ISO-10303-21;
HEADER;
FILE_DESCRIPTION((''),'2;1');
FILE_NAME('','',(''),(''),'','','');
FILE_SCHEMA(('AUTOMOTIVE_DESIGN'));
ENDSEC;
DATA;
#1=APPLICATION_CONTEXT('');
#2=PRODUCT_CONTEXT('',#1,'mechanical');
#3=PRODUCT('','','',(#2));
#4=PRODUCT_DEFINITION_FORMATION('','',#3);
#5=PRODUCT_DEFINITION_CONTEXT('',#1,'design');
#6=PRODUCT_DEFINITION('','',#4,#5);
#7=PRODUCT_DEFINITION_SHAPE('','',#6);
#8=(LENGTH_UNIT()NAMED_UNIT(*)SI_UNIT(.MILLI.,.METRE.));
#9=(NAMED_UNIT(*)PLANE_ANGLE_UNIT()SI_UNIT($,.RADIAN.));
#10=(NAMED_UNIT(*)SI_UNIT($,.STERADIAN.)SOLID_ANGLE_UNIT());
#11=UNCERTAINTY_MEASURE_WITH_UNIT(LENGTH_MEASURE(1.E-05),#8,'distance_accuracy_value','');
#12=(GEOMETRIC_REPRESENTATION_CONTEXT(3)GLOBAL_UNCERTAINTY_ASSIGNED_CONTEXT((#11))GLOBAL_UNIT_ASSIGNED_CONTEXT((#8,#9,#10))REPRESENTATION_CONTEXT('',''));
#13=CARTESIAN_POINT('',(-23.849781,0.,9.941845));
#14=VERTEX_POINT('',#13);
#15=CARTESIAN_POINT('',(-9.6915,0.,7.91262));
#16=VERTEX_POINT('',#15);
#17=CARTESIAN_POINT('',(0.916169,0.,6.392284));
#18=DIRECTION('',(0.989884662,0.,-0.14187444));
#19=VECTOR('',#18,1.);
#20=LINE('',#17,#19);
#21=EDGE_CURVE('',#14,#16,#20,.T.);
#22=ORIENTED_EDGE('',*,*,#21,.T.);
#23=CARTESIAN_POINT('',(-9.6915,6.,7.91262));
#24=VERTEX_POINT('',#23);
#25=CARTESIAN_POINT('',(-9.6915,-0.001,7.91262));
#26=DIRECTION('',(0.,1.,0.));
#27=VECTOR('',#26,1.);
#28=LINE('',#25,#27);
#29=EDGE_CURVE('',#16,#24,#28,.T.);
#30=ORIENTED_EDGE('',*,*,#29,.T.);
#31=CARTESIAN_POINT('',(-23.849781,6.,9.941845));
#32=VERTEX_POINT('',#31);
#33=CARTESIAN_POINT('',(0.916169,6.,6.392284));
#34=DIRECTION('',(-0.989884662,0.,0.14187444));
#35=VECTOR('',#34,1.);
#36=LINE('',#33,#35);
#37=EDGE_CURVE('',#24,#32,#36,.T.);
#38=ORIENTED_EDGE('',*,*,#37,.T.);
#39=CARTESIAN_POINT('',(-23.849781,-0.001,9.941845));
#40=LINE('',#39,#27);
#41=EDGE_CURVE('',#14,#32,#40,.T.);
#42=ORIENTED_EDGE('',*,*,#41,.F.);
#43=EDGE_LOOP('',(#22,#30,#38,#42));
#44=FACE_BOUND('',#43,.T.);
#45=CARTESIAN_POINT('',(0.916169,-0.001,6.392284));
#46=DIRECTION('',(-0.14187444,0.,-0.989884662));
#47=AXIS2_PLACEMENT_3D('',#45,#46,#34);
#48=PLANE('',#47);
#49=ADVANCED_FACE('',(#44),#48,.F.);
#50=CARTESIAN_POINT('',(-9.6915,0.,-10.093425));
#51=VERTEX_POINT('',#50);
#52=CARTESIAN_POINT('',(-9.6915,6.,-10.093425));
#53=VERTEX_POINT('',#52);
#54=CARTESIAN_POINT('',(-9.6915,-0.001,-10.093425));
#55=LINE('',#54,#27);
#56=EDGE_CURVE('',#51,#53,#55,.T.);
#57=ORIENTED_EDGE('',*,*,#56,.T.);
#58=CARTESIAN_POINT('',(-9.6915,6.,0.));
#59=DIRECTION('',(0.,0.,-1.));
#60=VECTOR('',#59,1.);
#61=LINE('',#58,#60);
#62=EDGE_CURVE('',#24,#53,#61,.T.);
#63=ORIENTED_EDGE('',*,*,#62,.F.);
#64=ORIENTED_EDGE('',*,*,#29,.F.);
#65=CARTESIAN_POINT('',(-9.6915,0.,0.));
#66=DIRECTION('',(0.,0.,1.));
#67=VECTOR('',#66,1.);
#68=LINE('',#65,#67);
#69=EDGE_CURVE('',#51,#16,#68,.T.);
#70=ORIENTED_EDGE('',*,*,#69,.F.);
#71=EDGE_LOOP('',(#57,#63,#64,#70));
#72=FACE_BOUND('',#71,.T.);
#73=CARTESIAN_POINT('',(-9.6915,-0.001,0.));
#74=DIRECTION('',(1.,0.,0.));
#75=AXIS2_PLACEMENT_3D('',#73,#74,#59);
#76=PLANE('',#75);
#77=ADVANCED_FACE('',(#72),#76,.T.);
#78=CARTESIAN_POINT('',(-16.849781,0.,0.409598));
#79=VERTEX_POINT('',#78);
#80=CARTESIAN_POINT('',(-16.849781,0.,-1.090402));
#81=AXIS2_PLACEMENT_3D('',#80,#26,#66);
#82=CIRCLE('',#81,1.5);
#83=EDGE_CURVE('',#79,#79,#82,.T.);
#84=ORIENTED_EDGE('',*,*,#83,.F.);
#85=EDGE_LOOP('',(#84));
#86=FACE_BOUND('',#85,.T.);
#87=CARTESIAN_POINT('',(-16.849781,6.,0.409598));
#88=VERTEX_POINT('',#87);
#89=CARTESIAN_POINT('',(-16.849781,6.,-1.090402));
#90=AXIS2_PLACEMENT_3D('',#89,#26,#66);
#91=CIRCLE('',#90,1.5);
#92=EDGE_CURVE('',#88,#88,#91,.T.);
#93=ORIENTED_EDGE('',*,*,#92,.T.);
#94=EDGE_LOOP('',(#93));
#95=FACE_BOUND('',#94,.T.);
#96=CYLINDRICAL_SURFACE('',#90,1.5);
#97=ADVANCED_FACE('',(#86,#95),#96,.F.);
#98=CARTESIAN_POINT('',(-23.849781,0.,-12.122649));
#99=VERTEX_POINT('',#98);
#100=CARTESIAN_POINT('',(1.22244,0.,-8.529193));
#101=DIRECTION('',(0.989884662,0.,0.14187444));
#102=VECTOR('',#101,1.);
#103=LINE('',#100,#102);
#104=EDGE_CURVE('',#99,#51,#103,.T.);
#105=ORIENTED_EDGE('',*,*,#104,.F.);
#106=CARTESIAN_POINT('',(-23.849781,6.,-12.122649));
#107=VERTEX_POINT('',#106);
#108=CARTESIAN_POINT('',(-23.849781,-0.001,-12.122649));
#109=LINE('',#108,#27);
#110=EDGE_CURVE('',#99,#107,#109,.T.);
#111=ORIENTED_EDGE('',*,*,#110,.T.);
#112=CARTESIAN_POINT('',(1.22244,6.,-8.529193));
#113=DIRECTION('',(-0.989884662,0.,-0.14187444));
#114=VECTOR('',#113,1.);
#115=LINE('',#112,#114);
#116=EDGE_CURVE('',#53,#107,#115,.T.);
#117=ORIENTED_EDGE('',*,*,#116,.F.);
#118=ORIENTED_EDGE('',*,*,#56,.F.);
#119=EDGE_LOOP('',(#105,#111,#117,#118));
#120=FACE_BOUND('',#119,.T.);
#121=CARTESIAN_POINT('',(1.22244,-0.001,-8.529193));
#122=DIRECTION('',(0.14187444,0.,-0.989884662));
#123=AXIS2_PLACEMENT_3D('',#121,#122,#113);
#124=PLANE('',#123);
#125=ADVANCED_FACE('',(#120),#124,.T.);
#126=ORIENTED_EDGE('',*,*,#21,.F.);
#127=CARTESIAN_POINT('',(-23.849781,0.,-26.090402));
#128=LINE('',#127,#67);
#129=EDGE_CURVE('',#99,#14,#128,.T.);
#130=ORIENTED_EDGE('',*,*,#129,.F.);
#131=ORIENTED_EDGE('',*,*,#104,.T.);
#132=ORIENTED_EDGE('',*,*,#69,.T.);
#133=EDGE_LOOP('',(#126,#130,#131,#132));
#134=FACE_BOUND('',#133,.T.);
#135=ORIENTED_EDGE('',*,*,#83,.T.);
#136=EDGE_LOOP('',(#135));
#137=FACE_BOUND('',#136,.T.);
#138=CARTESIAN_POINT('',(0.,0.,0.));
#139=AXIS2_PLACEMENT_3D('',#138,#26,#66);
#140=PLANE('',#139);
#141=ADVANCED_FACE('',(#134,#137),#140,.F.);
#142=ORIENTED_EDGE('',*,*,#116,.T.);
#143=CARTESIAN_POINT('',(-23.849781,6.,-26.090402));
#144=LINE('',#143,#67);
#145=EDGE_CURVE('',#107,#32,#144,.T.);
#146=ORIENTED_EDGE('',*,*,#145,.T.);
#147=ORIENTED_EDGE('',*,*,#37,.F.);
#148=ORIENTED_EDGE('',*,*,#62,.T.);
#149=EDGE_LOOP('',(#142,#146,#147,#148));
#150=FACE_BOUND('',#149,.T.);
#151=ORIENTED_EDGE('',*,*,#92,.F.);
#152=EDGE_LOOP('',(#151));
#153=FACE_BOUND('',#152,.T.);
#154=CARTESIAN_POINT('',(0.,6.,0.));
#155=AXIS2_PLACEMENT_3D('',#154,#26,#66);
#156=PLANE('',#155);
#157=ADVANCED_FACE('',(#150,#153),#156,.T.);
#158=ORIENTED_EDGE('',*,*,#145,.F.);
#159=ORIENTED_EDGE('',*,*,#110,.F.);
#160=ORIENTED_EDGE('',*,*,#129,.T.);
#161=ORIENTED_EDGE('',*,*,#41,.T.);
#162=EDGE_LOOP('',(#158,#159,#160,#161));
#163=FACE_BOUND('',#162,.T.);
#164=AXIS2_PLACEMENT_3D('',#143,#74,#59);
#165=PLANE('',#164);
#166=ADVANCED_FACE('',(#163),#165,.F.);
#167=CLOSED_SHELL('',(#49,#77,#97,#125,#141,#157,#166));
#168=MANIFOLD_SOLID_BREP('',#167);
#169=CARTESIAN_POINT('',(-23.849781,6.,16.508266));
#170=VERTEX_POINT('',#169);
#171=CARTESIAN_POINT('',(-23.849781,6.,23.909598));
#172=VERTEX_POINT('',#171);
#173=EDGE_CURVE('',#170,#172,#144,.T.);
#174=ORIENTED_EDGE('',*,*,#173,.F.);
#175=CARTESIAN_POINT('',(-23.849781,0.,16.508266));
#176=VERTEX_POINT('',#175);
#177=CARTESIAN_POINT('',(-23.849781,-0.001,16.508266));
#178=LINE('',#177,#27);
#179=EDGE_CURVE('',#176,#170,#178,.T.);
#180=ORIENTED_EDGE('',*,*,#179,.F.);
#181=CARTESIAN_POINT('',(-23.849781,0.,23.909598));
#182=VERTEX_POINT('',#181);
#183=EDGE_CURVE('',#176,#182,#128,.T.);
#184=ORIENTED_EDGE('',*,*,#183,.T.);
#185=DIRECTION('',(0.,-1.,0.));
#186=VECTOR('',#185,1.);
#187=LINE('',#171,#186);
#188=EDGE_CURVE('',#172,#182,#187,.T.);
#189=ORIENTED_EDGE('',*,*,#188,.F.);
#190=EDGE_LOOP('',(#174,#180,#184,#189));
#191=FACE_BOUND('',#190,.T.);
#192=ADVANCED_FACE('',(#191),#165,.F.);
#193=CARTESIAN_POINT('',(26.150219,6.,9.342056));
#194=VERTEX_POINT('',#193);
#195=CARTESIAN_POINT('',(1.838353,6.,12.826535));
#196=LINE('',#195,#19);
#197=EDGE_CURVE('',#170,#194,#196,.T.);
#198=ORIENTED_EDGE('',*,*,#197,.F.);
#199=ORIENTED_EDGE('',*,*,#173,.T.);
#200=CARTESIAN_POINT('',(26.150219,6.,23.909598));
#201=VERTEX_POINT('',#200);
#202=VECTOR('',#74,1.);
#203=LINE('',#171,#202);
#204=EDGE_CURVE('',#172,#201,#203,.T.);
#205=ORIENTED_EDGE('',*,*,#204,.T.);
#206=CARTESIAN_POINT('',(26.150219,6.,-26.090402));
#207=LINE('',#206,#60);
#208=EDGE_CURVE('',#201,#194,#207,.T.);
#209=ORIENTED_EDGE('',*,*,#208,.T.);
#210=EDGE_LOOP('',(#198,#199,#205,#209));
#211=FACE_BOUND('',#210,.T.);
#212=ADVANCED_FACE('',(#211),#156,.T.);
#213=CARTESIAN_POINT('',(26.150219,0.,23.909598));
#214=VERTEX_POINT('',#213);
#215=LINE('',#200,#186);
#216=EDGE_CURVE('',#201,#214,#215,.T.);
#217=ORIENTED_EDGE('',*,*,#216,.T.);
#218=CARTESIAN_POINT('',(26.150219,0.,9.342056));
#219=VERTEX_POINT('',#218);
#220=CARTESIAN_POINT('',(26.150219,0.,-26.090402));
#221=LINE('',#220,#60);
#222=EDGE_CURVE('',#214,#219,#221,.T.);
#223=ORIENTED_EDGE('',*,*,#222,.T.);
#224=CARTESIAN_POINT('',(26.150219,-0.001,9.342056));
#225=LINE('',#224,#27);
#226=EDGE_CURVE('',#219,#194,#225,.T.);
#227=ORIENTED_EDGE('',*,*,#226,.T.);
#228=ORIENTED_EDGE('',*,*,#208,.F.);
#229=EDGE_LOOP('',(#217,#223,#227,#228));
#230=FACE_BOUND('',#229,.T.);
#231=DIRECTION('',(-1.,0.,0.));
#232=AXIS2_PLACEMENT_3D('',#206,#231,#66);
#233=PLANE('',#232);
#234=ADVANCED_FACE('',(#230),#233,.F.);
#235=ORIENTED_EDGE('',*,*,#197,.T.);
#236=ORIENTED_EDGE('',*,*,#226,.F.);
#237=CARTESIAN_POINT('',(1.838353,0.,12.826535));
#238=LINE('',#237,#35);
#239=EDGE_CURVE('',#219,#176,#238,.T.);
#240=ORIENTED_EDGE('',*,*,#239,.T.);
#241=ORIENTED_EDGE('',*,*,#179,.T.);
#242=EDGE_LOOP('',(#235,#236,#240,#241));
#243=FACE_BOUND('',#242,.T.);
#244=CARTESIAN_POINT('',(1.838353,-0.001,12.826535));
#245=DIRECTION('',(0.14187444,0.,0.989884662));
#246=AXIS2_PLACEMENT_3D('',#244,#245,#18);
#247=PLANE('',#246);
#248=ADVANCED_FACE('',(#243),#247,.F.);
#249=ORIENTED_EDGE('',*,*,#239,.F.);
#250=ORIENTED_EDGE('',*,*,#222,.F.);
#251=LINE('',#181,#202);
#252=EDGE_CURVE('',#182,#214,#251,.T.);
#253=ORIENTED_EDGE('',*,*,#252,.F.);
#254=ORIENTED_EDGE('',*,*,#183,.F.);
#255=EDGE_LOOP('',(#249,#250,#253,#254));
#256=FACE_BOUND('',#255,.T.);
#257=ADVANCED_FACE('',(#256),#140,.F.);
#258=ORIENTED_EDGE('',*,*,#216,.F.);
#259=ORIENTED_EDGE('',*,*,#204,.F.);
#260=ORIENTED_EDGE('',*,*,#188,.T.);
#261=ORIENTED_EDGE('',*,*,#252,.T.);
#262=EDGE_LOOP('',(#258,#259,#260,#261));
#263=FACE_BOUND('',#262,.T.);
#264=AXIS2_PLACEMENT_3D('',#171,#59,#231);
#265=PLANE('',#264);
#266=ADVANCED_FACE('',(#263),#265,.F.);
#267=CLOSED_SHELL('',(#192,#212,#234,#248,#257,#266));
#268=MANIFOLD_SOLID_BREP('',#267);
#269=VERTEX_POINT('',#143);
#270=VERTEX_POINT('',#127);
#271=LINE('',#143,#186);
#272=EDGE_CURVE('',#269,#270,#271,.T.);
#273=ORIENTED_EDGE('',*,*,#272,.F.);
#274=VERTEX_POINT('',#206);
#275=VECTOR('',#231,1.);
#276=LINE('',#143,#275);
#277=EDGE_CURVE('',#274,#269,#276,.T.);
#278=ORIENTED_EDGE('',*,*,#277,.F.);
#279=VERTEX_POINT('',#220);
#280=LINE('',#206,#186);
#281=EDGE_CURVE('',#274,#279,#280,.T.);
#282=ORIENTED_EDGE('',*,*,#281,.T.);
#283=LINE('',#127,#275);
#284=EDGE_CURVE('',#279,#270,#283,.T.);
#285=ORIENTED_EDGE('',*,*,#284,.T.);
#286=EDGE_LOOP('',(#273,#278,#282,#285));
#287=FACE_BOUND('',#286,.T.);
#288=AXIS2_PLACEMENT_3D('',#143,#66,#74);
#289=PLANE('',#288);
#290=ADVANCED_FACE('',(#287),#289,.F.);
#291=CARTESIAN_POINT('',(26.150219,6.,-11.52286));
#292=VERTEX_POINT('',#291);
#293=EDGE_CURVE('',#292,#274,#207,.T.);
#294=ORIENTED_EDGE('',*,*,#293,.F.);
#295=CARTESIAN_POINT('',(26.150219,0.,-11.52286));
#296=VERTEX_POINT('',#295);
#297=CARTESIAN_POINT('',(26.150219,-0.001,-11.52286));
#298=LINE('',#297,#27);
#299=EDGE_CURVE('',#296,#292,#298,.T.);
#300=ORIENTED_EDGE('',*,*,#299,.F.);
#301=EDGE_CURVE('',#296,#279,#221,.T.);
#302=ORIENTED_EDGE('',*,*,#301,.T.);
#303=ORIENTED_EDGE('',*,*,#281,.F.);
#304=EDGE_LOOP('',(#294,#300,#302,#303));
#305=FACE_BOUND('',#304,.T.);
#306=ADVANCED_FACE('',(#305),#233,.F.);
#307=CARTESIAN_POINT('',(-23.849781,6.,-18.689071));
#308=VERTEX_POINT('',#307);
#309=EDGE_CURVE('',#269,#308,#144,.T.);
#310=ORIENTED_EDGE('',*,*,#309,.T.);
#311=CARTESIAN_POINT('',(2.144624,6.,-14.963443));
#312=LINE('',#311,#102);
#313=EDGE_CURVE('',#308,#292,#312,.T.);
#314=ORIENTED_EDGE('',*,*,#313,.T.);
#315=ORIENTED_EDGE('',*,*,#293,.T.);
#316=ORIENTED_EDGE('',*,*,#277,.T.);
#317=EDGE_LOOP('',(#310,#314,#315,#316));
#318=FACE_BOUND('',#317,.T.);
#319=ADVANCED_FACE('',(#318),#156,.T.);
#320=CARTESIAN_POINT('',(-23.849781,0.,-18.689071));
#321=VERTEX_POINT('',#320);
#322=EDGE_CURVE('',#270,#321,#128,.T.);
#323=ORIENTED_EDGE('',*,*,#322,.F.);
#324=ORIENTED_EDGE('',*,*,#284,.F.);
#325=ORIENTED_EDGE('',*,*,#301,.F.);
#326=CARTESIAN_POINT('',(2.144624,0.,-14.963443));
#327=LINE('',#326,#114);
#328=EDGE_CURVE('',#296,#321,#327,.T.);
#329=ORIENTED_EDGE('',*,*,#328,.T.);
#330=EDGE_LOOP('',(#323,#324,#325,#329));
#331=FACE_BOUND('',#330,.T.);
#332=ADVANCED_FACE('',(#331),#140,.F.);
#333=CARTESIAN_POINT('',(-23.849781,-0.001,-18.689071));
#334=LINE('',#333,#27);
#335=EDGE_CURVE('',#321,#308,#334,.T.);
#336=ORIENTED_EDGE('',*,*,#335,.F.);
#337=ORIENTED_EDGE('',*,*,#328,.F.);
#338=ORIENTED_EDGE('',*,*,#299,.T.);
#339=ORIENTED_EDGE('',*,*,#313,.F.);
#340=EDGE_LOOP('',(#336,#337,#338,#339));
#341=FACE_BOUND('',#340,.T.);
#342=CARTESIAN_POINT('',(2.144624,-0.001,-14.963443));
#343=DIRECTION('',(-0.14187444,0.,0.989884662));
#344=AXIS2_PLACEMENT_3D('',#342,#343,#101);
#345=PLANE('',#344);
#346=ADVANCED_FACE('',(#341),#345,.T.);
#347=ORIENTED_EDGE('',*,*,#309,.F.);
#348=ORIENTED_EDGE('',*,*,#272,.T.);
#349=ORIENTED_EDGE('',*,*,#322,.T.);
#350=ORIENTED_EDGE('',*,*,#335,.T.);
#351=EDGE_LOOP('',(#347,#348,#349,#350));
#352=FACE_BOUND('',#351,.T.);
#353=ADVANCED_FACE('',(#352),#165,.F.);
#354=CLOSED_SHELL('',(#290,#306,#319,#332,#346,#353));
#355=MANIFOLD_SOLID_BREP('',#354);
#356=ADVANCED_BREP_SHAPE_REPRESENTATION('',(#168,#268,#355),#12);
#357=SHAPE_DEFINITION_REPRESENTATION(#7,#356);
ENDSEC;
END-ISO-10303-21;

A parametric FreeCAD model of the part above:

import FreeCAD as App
import Part
import Sketcher

V = App.Vector
Q = App.Units.Quantity

doc = App.newDocument("Part")
body = doc.addObject("PartDesign::Body", "Body")
body.AllowCompound = True

sketch1 = body.newObject("Sketcher::SketchObject", "Sketch")
sketch1.AttachmentSupport = (doc.getObject("XZ_Plane"), [""])
sketch1.MapMode = "FlatFace"
sketch1.addGeometry(Part.LineSegment(V(-24, -26, 0), V(-24, 24, 0)), False)
sketch1.addGeometry(Part.LineSegment(V(-24, 24, 0), V(26, 24, 0)), False)
sketch1.addGeometry(Part.LineSegment(V(26, 24, 0), V(26, -26, 0)), False)
sketch1.addGeometry(Part.LineSegment(V(26, -26, 0), V(-24, -26, 0)), False)
sketch1.addConstraint(Sketcher.Constraint("Coincident", 0, 2, 1, 1))
sketch1.addConstraint(Sketcher.Constraint("Coincident", 1, 2, 2, 1))
sketch1.addConstraint(Sketcher.Constraint("Coincident", 2, 2, 3, 1))
sketch1.addConstraint(Sketcher.Constraint("Coincident", 3, 2, 0, 1))
sketch1.addConstraint(Sketcher.Constraint("Vertical", 0))
sketch1.addConstraint(Sketcher.Constraint("Horizontal", 1))
sketch1.addConstraint(Sketcher.Constraint("Vertical", 2))
sketch1.addConstraint(Sketcher.Constraint("Horizontal", 3))
sketch1.addConstraint(Sketcher.Constraint("Equal", 3, 0))
sketch1.addConstraint(Sketcher.Constraint("DistanceX", 1, 1, 1, 2, Q("50 mm")))
sketch1.addConstraint(Sketcher.Constraint("DistanceX", 0, 2, -1, 1, Q("23.849781 mm")))
sketch1.addConstraint(Sketcher.Constraint("DistanceY", -1, 1, 0, 2, Q("23.909598 mm")))
pad1 = body.newObject("PartDesign::Pad", "Pad")
pad1.Profile = sketch1
pad1.Length = 6
pad1.Reversed = True

sketch2 = body.newObject("Sketcher::SketchObject", "Sketch001")
sketch2.AttachmentSupport = (doc.getObject("XZ_Plane"), [""])
sketch2.MapMode = "FlatFace"
sketch2.AttachmentOffset = App.Placement(V(0, 0, -6), App.Rotation())
sketch2.addGeometry(Part.LineSegment(V(-24, -19, 0), V(-24, -12, 0)), False)
sketch2.addGeometry(Part.LineSegment(V(-24, -12, 0), V(-10, -10, 0)), False)
sketch2.addGeometry(Part.LineSegment(V(-10, -10, 0), V(26, -5, 0)), False)
sketch2.addGeometry(Part.LineSegment(V(26, -5, 0), V(26, -12, 0)), False)
sketch2.addGeometry(Part.LineSegment(V(26, -12, 0), V(-24, -19, 0)), False)
sketch2.addConstraint(Sketcher.Constraint("Coincident", 0, 2, 1, 1))
sketch2.addConstraint(Sketcher.Constraint("Coincident", 1, 2, 2, 1))
sketch2.addConstraint(Sketcher.Constraint("Coincident", 2, 2, 3, 1))
sketch2.addConstraint(Sketcher.Constraint("Coincident", 3, 2, 4, 1))
sketch2.addConstraint(Sketcher.Constraint("Coincident", 4, 2, 0, 1))
sketch2.addConstraint(Sketcher.Constraint("Vertical", 0))
sketch2.addConstraint(Sketcher.Constraint("Vertical", 3))
sketch2.addConstraint(Sketcher.Constraint("Parallel", 1, 2))
sketch2.addConstraint(Sketcher.Constraint("Parallel", 2, 4))
sketch2.addConstraint(Sketcher.Constraint("DistanceX", 0, 2, 2, 2, Q("50 mm")))
sketch2.addConstraint(Sketcher.Constraint("DistanceY", 0, 1, 0, 2, Q("6.566422 mm")))
sketch2.addConstraint(Sketcher.Constraint("DistanceX", 1, 2, -1, 1, Q("9.6915 mm")))
sketch2.addConstraint(Sketcher.Constraint("Distance", 1, Q("14.302961 mm")))
sketch2.addConstraint(Sketcher.Constraint("DistanceX", 0, 2, -1, 1, Q("23.849781 mm")))
sketch2.addConstraint(Sketcher.Constraint("DistanceY", 0, 2, -1, 1, Q("12.122649 mm")))
pocket1 = body.newObject("PartDesign::Pocket", "Pocket")
pocket1.Profile = sketch2
pocket1.Type = "UpToFirst"
pocket1.Reversed = True

sketch3 = body.newObject("Sketcher::SketchObject", "Sketch002")
sketch3.AttachmentSupport = (doc.getObject("XZ_Plane"), [""])
sketch3.MapMode = "FlatFace"
sketch3.AttachmentOffset = App.Placement(V(0, 0, -6), App.Rotation())
sketch3.addGeometry(Part.LineSegment(V(-24, 10, 0), V(-24, 17, 0)), False)
sketch3.addGeometry(Part.LineSegment(V(-24, 17, 0), V(26, 9, 0)), False)
sketch3.addGeometry(Part.LineSegment(V(26, 9, 0), V(26, 3, 0)), False)
sketch3.addGeometry(Part.LineSegment(V(26, 3, 0), V(-10, 8, 0)), False)
sketch3.addGeometry(Part.LineSegment(V(-10, 8, 0), V(-24, 10, 0)), False)
sketch3.addConstraint(Sketcher.Constraint("Coincident", 0, 2, 1, 1))
sketch3.addConstraint(Sketcher.Constraint("Coincident", 1, 2, 2, 1))
sketch3.addConstraint(Sketcher.Constraint("Coincident", 2, 2, 3, 1))
sketch3.addConstraint(Sketcher.Constraint("Coincident", 3, 2, 4, 1))
sketch3.addConstraint(Sketcher.Constraint("Coincident", 4, 2, 0, 1))
sketch3.addConstraint(Sketcher.Constraint("Vertical", 0))
sketch3.addConstraint(Sketcher.Constraint("Vertical", 2))
sketch3.addConstraint(Sketcher.Constraint("Parallel", 1, 3))
sketch3.addConstraint(Sketcher.Constraint("Parallel", 3, 4))
sketch3.addConstraint(Sketcher.Constraint("DistanceX", 0, 2, 1, 2, Q("50 mm")))
sketch3.addConstraint(Sketcher.Constraint("DistanceY", 0, 1, 0, 2, Q("6.566422 mm")))
sketch3.addConstraint(Sketcher.Constraint("DistanceX", 3, 2, -1, 1, Q("9.6915 mm")))
sketch3.addConstraint(Sketcher.Constraint("Distance", 4, Q("14.302961 mm")))
sketch3.addConstraint(Sketcher.Constraint("DistanceX", 0, 2, -1, 1, Q("23.849781 mm")))
sketch3.addConstraint(Sketcher.Constraint("DistanceY", -1, 1, 3, 2, Q("7.91262 mm")))
pocket2 = body.newObject("PartDesign::Pocket", "Pocket001")
pocket2.Profile = sketch3
pocket2.Type = "UpToFirst"
pocket2.Reversed = True

sketch4 = body.newObject("Sketcher::SketchObject", "Sketch003")
sketch4.AttachmentSupport = (doc.getObject("XZ_Plane"), [""])
sketch4.MapMode = "FlatFace"
sketch4.AttachmentOffset = App.Placement(V(0, 0, -6), App.Rotation())
sketch4.addGeometry(Part.LineSegment(V(-10, 8, 0), V(26, 3, 0)), False)
sketch4.addGeometry(Part.LineSegment(V(26, 3, 0), V(26, -5, 0)), False)
sketch4.addGeometry(Part.LineSegment(V(26, -5, 0), V(-10, -10, 0)), False)
sketch4.addGeometry(Part.LineSegment(V(-10, -10, 0), V(-10, 8, 0)), False)
sketch4.addConstraint(Sketcher.Constraint("Coincident", 0, 2, 1, 1))
sketch4.addConstraint(Sketcher.Constraint("Coincident", 1, 2, 2, 1))
sketch4.addConstraint(Sketcher.Constraint("Coincident", 2, 2, 3, 1))
sketch4.addConstraint(Sketcher.Constraint("Coincident", 3, 2, 0, 1))
sketch4.addConstraint(Sketcher.Constraint("Vertical", 1))
sketch4.addConstraint(Sketcher.Constraint("Vertical", 3))
sketch4.addConstraint(Sketcher.Constraint("Equal", 0, 2))
sketch4.addConstraint(Sketcher.Constraint("DistanceX", 2, 2, -1, 1, Q("9.6915 mm")))
sketch4.addConstraint(Sketcher.Constraint("DistanceY", 1, 2, 1, 1, Q("7.732073 mm")))
sketch4.addConstraint(Sketcher.Constraint("DistanceY", 3, 1, 3, 2, Q("18.006045 mm")))
sketch4.addConstraint(Sketcher.Constraint("DistanceX", -1, 1, 0, 2, Q("26.150219 mm")))
sketch4.addConstraint(Sketcher.Constraint("DistanceY", 1, 2, -1, 1, Q("4.956438 mm")))
pocket3 = body.newObject("PartDesign::Pocket", "Pocket002")
pocket3.Profile = sketch4
pocket3.Type = "UpToFirst"
pocket3.Reversed = True

sketch5 = body.newObject("Sketcher::SketchObject", "Sketch004")
sketch5.AttachmentSupport = (doc.getObject("XZ_Plane"), [""])
sketch5.MapMode = "FlatFace"
sketch5.AttachmentOffset = App.Placement(V(0, 0, -6), App.Rotation())
sketch5.addGeometry(Part.Circle(V(-16.8, -1.1, 0), V(0, 0, 1), 1.5), False)
sketch5.addConstraint(Sketcher.Constraint("Diameter", 0, Q("3 mm")))
sketch5.addConstraint(Sketcher.Constraint("DistanceX", 0, 3, -1, 1, Q("16.849781 mm")))
sketch5.addConstraint(Sketcher.Constraint("DistanceY", 0, 3, -1, 1, Q("1.090402 mm")))
doc.recompute()
hole = body.newObject("PartDesign::Hole", "Hole")
hole.Profile = sketch5
hole.ThreadType = "None"
hole.Diameter = 3
hole.DepthType = "ThroughAll"
hole.Reversed = True

doc.recompute()
